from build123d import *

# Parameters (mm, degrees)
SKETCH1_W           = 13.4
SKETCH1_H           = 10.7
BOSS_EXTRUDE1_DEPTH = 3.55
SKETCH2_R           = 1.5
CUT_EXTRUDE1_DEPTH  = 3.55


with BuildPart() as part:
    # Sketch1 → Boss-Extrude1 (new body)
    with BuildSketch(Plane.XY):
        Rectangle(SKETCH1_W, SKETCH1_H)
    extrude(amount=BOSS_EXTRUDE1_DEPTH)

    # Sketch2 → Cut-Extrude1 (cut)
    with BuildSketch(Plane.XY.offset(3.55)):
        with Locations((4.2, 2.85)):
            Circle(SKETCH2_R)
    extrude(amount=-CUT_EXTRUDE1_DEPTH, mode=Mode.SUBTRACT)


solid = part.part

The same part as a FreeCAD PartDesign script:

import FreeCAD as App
import Part
import Sketcher
from FreeCAD import Vector
Q = App.Units.Quantity


def add_polygon(sketch, points):
    """Adds a closed chain of lines whose ends are joined by coincident constraints."""
    first, n = sketch.GeometryCount, len(points)
    for a, b in zip(points, points[1:] + points[:1]):
        sketch.addGeometry(Part.LineSegment(App.Vector(*a, 0), App.Vector(*b, 0)), False)
    for i in range(n):
        sketch.addConstraint(Sketcher.Constraint("Coincident", first + i, 2, first + (i + 1) % n, 1))

doc = App.newDocument("Part")
body = doc.addObject("PartDesign::Body", "Body")

# Sketch on XY plane
sketch1 = body.newObject("Sketcher::SketchObject", "Sketch")
sketch1.AttachmentSupport = (doc.getObject("XY_Plane"), [""])
sketch1.MapMode = "FlatFace"
add_polygon(sketch1, [(-7, 5), (-7, -5), (7, -5), (7, 5)])  # lines 0-3
sketch1.addConstraint([
    Sketcher.Constraint("Vertical", 0),
    Sketcher.Constraint("Horizontal", 1),
    Sketcher.Constraint("Vertical", 2),
    Sketcher.Constraint("Horizontal", 3),
    Sketcher.Constraint("Symmetric", 0, 2, 2, 2, -1, 1),
    Sketcher.Constraint("DistanceX", 1, 1, 1, 2, Q("13.4 mm")),
    Sketcher.Constraint("DistanceY", 0, 2, 0, 1, Q("10.7 mm")),
])
pad1 = body.newObject("PartDesign::Pad", "Pad")
pad1.Profile = sketch1
pad1.Length = 3.55

# Sketch on XY plane
sketch2 = body.newObject("Sketcher::SketchObject", "Sketch001")
sketch2.AttachmentSupport = (doc.getObject("XY_Plane"), [""])
sketch2.MapMode = "FlatFace"
sketch2.AttachmentOffset = App.Placement(Vector(0, 0, 3.55), App.Rotation())
sketch2.addGeometry(Part.Circle(Vector(4.2, 2.9, 0), Vector(0, 0, 1), 1.5), False)
sketch2.addConstraint([
    Sketcher.Constraint("Diameter", 0, Q("3 mm")),
    Sketcher.Constraint("DistanceX", -1, 1, 0, 3, Q("4.2 mm")),
    Sketcher.Constraint("DistanceY", -1, 1, 0, 3, Q("2.85 mm")),
])
pocket1 = body.newObject("PartDesign::Pocket", "Pocket")
pocket1.Profile = sketch2
pocket1.Length = 3.55

doc.recompute()
